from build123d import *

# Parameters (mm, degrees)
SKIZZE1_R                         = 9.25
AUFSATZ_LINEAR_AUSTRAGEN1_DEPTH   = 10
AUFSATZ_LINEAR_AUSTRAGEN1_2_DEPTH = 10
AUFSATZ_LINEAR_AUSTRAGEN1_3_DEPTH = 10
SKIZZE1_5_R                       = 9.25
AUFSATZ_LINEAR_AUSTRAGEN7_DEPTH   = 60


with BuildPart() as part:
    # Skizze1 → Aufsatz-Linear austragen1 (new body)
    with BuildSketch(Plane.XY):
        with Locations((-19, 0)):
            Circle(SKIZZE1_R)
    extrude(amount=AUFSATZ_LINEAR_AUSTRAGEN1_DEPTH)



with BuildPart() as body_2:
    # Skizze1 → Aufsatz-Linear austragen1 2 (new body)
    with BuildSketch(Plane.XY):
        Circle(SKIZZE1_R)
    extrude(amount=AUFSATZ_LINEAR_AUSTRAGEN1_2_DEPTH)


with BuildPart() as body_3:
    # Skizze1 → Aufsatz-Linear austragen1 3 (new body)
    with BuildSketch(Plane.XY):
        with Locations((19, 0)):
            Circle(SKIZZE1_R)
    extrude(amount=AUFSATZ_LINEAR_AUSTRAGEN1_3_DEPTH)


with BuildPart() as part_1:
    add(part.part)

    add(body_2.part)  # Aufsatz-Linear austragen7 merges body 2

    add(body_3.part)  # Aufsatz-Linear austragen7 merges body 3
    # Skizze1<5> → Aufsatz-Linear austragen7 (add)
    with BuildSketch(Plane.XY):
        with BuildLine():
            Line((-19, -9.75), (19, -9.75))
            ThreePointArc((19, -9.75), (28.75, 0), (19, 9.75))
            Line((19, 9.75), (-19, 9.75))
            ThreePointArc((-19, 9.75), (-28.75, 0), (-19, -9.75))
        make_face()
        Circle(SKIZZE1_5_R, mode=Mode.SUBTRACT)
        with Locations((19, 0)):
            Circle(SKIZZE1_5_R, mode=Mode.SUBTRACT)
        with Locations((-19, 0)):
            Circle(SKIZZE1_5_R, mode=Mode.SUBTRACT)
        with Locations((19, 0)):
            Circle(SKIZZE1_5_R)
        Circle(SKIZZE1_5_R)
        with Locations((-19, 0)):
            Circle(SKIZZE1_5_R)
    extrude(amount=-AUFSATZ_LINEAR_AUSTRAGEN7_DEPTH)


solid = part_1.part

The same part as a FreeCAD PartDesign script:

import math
import FreeCAD as App
import Part
import Sketcher
Q = App.Units.Quantity

doc = App.newDocument("Part")
body = doc.addObject("PartDesign::Body", "Body")

# Sketch on XY plane
sketch1 = body.newObject("Sketcher::SketchObject", "Sketch")
sketch1.AttachmentSupport = (doc.getObject("XY_Plane"), [""])
sketch1.MapMode = "FlatFace"
sketch1.addGeometry(Part.Circle(App.Vector(-19, 0, 0), App.Vector(0, 0, 1), 9), False)
sketch1.addConstraint(Sketcher.Constraint("PointOnObject", 0, 3, -1))
sketch1.addConstraint(Sketcher.Constraint("Diameter", 0, Q("18.5 mm")))
sketch1.addConstraint(Sketcher.Constraint("DistanceX", 0, 3, -1, 1, Q("19 mm")))
pad1 = body.newObject("PartDesign::Pad", "Pad")
pad1.Profile = sketch1
pad1.Length = 10
body2 = doc.addObject("PartDesign::Body", "Body001")

# Sketch on XY plane
sketch2 = body2.newObject("Sketcher::SketchObject", "Sketch001")
sketch2.AttachmentSupport = (doc.getObject("XY_Plane001"), [""])
sketch2.MapMode = "FlatFace"
sketch2.addGeometry(Part.Circle(App.Vector(0, 0, 0), App.Vector(0, 0, 1), 9), False)
sketch2.addConstraint(Sketcher.Constraint("Coincident", 0, 3, -1, 1))
sketch2.addConstraint(Sketcher.Constraint("Diameter", 0, Q("18.5 mm")))
pad2 = body2.newObject("PartDesign::Pad", "Pad001")
pad2.Profile = sketch2
pad2.Length = 10
body3 = doc.addObject("PartDesign::Body", "Body002")

# Sketch on XY plane
sketch3 = body3.newObject("Sketcher::SketchObject", "Sketch002")
sketch3.AttachmentSupport = (doc.getObject("XY_Plane002"), [""])
sketch3.MapMode = "FlatFace"
sketch3.addGeometry(Part.Circle(App.Vector(19, 0, 0), App.Vector(0, 0, 1), 9), False)
sketch3.addConstraint(Sketcher.Constraint("PointOnObject", 0, 3, -1))
sketch3.addConstraint(Sketcher.Constraint("Diameter", 0, Q("18.5 mm")))
sketch3.addConstraint(Sketcher.Constraint("DistanceX", -1, 1, 0, 3, Q("19 mm")))
pad3 = body3.newObject("PartDesign::Pad", "Pad002")
pad3.Profile = sketch3
pad3.Length = 10
body.AllowCompound = True
doc.recompute()

boolean = body.newObject("PartDesign::Boolean", "Boolean")
boolean.Type = "Fuse"
boolean.addObjects([body2])
doc.recompute()

boolean2 = body.newObject("PartDesign::Boolean", "Boolean001")
boolean2.Type = "Fuse"
boolean2.addObjects([body3])

# Sketch on XY plane
sketch4 = body.newObject("Sketcher::SketchObject", "Sketch003")
sketch4.AttachmentSupport = (doc.getObject("XY_Plane"), [""])
sketch4.MapMode = "FlatFace"
sketch4.addGeometry(Part.LineSegment(App.Vector(-19, -10, 0), App.Vector(19, -10, 0)), False)
sketch4.addGeometry(Part.ArcOfCircle(Part.Circle(App.Vector(19, 0, 0), App.Vector(0, 0, 1), 10), math.radians(-90), math.radians(90)), False)
sketch4.addGeometry(Part.LineSegment(App.Vector(19, 10, 0), App.Vector(-19, 10, 0)), False)
sketch4.addGeometry(Part.ArcOfCircle(Part.Circle(App.Vector(-19, 0, 0), App.Vector(0, 0, 1), 10), math.radians(90), math.radians(270)), False)
sketch4.addConstraint(Sketcher.Constraint("Tangent", 0, 2, 1, 1))
sketch4.addConstraint(Sketcher.Constraint("Tangent", 1, 2, 2, 1))
sketch4.addConstraint(Sketcher.Constraint("Tangent", 2, 2, 3, 1))
sketch4.addConstraint(Sketcher.Constraint("Tangent", 3, 2, 0, 1))
sketch4.addConstraint(Sketcher.Constraint("Horizontal", 0))
sketch4.addConstraint(Sketcher.Constraint("Horizontal", 2))
sketch4.addConstraint(Sketcher.Constraint("Symmetric", 1, 3, 3, 3, -1, 1))
sketch4.addConstraint(Sketcher.Constraint("DistanceX", 0, 1, 0, 2, Q("38 mm")))
sketch4.addConstraint(Sketcher.Constraint("Radius", 1, Q("9.75 mm")))
pad4 = body.newObject("PartDesign::Pad", "Pad003")
pad4.Profile = sketch4
pad4.Length = 60
pad4.Reversed = True

doc.recompute()
